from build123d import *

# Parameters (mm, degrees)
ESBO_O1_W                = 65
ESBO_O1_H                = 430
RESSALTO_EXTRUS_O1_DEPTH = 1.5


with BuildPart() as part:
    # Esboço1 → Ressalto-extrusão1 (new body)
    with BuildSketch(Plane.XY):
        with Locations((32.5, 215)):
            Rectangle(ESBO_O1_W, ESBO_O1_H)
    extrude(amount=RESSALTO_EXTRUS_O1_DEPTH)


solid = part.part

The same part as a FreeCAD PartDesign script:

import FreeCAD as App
import Part
import Sketcher

V = App.Vector
Q = App.Units.Quantity


def add_polygon(sketch, points):
    """Adds a closed chain of lines whose ends are joined by coincident constraints."""
    first, n = sketch.GeometryCount, len(points)
    for a, b in zip(points, points[1:] + points[:1]):
        sketch.addGeometry(Part.LineSegment(App.Vector(*a, 0), App.Vector(*b, 0)), False)
    for i in range(n):
        sketch.addConstraint(Sketcher.Constraint("Coincident", first + i, 2, first + (i + 1) % n, 1))

doc = App.newDocument("Part")
body = doc.addObject("PartDesign::Body", "Body")

# Sketch on XY plane
sketch1 = body.newObject("Sketcher::SketchObject", "Sketch")
sketch1.AttachmentSupport = (doc.getObject("XY_Plane"), [""])
sketch1.MapMode = "FlatFace"
add_polygon(sketch1, [(0, 430), (0, 0), (65, 0), (65, 430)])  # lines 0-3
sketch1.addConstraint([
    Sketcher.Constraint("Vertical", 0),
    Sketcher.Constraint("Horizontal", 1),
    Sketcher.Constraint("Vertical", 2),
    Sketcher.Constraint("Horizontal", 3),
    Sketcher.Constraint("Coincident", 0, 2, -1, 1),
    Sketcher.Constraint("DistanceX", 1, 1, 1, 2, Q("65 mm")),
    Sketcher.Constraint("DistanceY", 0, 2, 0, 1, Q("430 mm")),
])
pad1 = body.newObject("PartDesign::Pad", "Pad")
pad1.Profile = sketch1
pad1.Length = 1.5

doc.recompute()
